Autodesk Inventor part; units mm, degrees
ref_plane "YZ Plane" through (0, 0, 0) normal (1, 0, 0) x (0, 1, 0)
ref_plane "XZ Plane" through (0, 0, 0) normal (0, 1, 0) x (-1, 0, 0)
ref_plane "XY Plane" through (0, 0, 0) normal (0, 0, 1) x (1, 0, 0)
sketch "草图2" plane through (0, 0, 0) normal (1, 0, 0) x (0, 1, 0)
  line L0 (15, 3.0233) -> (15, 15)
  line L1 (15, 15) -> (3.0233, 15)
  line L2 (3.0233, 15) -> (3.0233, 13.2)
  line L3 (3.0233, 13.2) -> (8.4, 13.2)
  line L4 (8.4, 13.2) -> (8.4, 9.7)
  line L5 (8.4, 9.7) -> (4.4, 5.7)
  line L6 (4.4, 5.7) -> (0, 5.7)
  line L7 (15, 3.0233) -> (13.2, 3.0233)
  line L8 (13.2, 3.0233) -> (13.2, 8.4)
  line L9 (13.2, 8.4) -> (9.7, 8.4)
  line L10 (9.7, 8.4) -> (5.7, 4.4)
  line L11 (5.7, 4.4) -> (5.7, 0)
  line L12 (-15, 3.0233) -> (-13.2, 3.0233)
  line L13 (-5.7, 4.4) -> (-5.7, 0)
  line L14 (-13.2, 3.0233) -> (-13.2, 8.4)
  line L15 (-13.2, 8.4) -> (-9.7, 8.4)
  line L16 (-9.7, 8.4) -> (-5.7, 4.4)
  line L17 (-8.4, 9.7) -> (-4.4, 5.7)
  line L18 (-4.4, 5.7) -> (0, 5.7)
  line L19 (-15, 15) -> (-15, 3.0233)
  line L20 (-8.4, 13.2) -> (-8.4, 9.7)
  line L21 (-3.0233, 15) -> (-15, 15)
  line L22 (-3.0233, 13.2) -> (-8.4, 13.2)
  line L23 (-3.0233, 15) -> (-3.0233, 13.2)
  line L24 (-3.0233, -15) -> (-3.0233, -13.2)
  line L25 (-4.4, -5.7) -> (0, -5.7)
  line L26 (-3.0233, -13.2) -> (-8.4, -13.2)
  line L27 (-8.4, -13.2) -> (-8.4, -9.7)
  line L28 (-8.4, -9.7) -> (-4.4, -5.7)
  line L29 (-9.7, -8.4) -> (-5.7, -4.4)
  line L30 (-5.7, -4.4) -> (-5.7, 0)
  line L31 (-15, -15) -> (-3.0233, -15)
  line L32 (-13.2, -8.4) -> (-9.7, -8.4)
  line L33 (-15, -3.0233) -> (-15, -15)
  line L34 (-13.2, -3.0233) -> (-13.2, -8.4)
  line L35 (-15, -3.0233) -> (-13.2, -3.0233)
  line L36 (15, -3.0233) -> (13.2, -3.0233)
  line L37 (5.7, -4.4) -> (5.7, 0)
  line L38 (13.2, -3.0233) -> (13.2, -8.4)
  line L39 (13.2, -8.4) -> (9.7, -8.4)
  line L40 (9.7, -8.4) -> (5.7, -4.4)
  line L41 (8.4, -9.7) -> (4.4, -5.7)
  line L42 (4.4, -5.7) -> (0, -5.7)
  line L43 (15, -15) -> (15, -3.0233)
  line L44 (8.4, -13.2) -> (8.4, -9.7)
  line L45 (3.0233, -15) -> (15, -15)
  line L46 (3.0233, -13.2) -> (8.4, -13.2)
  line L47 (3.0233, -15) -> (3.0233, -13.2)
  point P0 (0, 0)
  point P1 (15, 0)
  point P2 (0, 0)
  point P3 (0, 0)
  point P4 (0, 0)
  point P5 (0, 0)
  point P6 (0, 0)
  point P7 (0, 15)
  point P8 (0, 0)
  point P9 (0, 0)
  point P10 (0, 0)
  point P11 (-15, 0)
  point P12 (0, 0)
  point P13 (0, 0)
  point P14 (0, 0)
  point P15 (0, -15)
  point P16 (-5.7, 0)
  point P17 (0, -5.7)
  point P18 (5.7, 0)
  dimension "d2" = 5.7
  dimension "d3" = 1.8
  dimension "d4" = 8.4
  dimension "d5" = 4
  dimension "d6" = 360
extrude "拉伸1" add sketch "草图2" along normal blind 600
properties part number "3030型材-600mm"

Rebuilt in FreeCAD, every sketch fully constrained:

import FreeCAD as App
import Part
import Sketcher
from FreeCAD import Vector

doc = App.newDocument("Part")
body = doc.addObject("PartDesign::Body", "Body")

# Sketch on YZ plane
sketch1 = body.newObject("Sketcher::SketchObject", "Sketch")
sketch1.AttachmentSupport = (doc.getObject("YZ_Plane"), [""])
sketch1.MapMode = "FlatFace"
sketch1.addGeometry([
    Part.LineSegment(Vector(13.2, 3.0233, 0), Vector(15, 3.0233, 0)),  # 0
    Part.LineSegment(Vector(15, 3.0233, 0), Vector(15, 15, 0)),  # 1
    Part.LineSegment(Vector(15, 15, 0), Vector(3.0233, 15, 0)),  # 2
    Part.LineSegment(Vector(3.0233, 15, 0), Vector(3.0233, 13.2, 0)),  # 3
    Part.LineSegment(Vector(3.0233, 13.2, 0), Vector(8.4, 13.2, 0)),  # 4
    Part.LineSegment(Vector(8.4, 13.2, 0), Vector(8.4, 9.7, 0)),  # 5
    Part.LineSegment(Vector(8.4, 9.7, 0), Vector(4.4, 5.7, 0)),  # 6
    Part.LineSegment(Vector(4.4, 5.7, 0), Vector(-4.4, 5.7, 0)),  # 7
    Part.LineSegment(Vector(-4.4, 5.7, 0), Vector(-8.4, 9.7, 0)),  # 8
    Part.LineSegment(Vector(-8.4, 9.7, 0), Vector(-8.4, 13.2, 0)),  # 9
    Part.LineSegment(Vector(-8.4, 13.2, 0), Vector(-3.0233, 13.2, 0)),  # 10
    Part.LineSegment(Vector(-3.0233, 13.2, 0), Vector(-3.0233, 15, 0)),  # 11
    Part.LineSegment(Vector(-3.0233, 15, 0), Vector(-15, 15, 0)),  # 12
    Part.LineSegment(Vector(-15, 15, 0), Vector(-15, 3.0233, 0)),  # 13
    Part.LineSegment(Vector(-15, 3.0233, 0), Vector(-13.2, 3.0233, 0)),  # 14
    Part.LineSegment(Vector(-13.2, 3.0233, 0), Vector(-13.2, 8.4, 0)),  # 15
    Part.LineSegment(Vector(-13.2, 8.4, 0), Vector(-9.7, 8.4, 0)),  # 16
    Part.LineSegment(Vector(-9.7, 8.4, 0), Vector(-5.7, 4.4, 0)),  # 17
    Part.LineSegment(Vector(-5.7, 4.4, 0), Vector(-5.7, -4.4, 0)),  # 18
    Part.LineSegment(Vector(-5.7, -4.4, 0), Vector(-9.7, -8.4, 0)),  # 19
    Part.LineSegment(Vector(-9.7, -8.4, 0), Vector(-13.2, -8.4, 0)),  # 20
    Part.LineSegment(Vector(-13.2, -8.4, 0), Vector(-13.2, -3.0233, 0)),  # 21
    Part.LineSegment(Vector(-13.2, -3.0233, 0), Vector(-15, -3.0233, 0)),  # 22
    Part.LineSegment(Vector(-15, -3.0233, 0), Vector(-15, -15, 0)),  # 23
    Part.LineSegment(Vector(-15, -15, 0), Vector(-3.0233, -15, 0)),  # 24
    Part.LineSegment(Vector(-3.0233, -15, 0), Vector(-3.0233, -13.2, 0)),  # 25
    Part.LineSegment(Vector(-3.0233, -13.2, 0), Vector(-8.4, -13.2, 0)),  # 26
    Part.LineSegment(Vector(-8.4, -13.2, 0), Vector(-8.4, -9.7, 0)),  # 27
    Part.LineSegment(Vector(-8.4, -9.7, 0), Vector(-4.4, -5.7, 0)),  # 28
    Part.LineSegment(Vector(-4.4, -5.7, 0), Vector(4.4, -5.7, 0)),  # 29
    Part.LineSegment(Vector(4.4, -5.7, 0), Vector(8.4, -9.7, 0)),  # 30
    Part.LineSegment(Vector(8.4, -9.7, 0), Vector(8.4, -13.2, 0)),  # 31
    Part.LineSegment(Vector(8.4, -13.2, 0), Vector(3.0233, -13.2, 0)),  # 32
    Part.LineSegment(Vector(3.0233, -13.2, 0), Vector(3.0233, -15, 0)),  # 33
    Part.LineSegment(Vector(3.0233, -15, 0), Vector(15, -15, 0)),  # 34
    Part.LineSegment(Vector(15, -15, 0), Vector(15, -3.0233, 0)),  # 35
    Part.LineSegment(Vector(15, -3.0233, 0), Vector(13.2, -3.0233, 0)),  # 36
    Part.LineSegment(Vector(13.2, -3.0233, 0), Vector(13.2, -8.4, 0)),  # 37
    Part.LineSegment(Vector(13.2, -8.4, 0), Vector(9.7, -8.4, 0)),  # 38
    Part.LineSegment(Vector(9.7, -8.4, 0), Vector(5.7, -4.4, 0)),  # 39
    Part.LineSegment(Vector(5.7, -4.4, 0), Vector(5.7, 4.4, 0)),  # 40
    Part.LineSegment(Vector(5.7, 4.4, 0), Vector(9.7, 8.4, 0)),  # 41
    Part.LineSegment(Vector(9.7, 8.4, 0), Vector(13.2, 8.4, 0)),  # 42
    Part.LineSegment(Vector(13.2, 8.4, 0), Vector(13.2, 3.0233, 0)),  # 43
], False)
sketch1.addConstraint([
    Sketcher.Constraint("Coincident", 0, 2, 1, 1),
    Sketcher.Constraint("Coincident", 1, 2, 2, 1),
    Sketcher.Constraint("Coincident", 2, 2, 3, 1),
    Sketcher.Constraint("Coincident", 3, 2, 4, 1),
    Sketcher.Constraint("Coincident", 4, 2, 5, 1),
    Sketcher.Constraint("Coincident", 5, 2, 6, 1),
    Sketcher.Constraint("Coincident", 6, 2, 7, 1),
    Sketcher.Constraint("Coincident", 7, 2, 8, 1),
    Sketcher.Constraint("Coincident", 8, 2, 9, 1),
    Sketcher.Constraint("Coincident", 9, 2, 10, 1),
    Sketcher.Constraint("Coincident", 10, 2, 11, 1),
    Sketcher.Constraint("Coincident", 11, 2, 12, 1),
    Sketcher.Constraint("Coincident", 12, 2, 13, 1),
    Sketcher.Constraint("Coincident", 13, 2, 14, 1),
    Sketcher.Constraint("Coincident", 14, 2, 15, 1),
    Sketcher.Constraint("Coincident", 15, 2, 16, 1),
    Sketcher.Constraint("Coincident", 16, 2, 17, 1),
    Sketcher.Constraint("Coincident", 17, 2, 18, 1),
    Sketcher.Constraint("Coincident", 18, 2, 19, 1),
    Sketcher.Constraint("Coincident", 19, 2, 20, 1),
    Sketcher.Constraint("Coincident", 20, 2, 21, 1),
    Sketcher.Constraint("Coincident", 21, 2, 22, 1),
    Sketcher.Constraint("Coincident", 22, 2, 23, 1),
    Sketcher.Constraint("Coincident", 23, 2, 24, 1),
    Sketcher.Constraint("Coincident", 24, 2, 25, 1),
    Sketcher.Constraint("Coincident", 25, 2, 26, 1),
    Sketcher.Constraint("Coincident", 26, 2, 27, 1),
    Sketcher.Constraint("Coincident", 27, 2, 28, 1),
    Sketcher.Constraint("Coincident", 28, 2, 29, 1),
    Sketcher.Constraint("Coincident", 29, 2, 30, 1),
    Sketcher.Constraint("Coincident", 30, 2, 31, 1),
    Sketcher.Constraint("Coincident", 31, 2, 32, 1),
    Sketcher.Constraint("Coincident", 32, 2, 33, 1),
    Sketcher.Constraint("Coincident", 33, 2, 34, 1),
    Sketcher.Constraint("Coincident", 34, 2, 35, 1),
    Sketcher.Constraint("Coincident", 35, 2, 36, 1),
    Sketcher.Constraint("Coincident", 36, 2, 37, 1),
    Sketcher.Constraint("Coincident", 37, 2, 38, 1),
    Sketcher.Constraint("Coincident", 38, 2, 39, 1),
    Sketcher.Constraint("Coincident", 39, 2, 40, 1),
    Sketcher.Constraint("Coincident", 40, 2, 41, 1),
    Sketcher.Constraint("Coincident", 41, 2, 42, 1),
    Sketcher.Constraint("Coincident", 42, 2, 43, 1),
    Sketcher.Constraint("Coincident", 43, 2, 0, 1),
    Sketcher.Constraint("Horizontal", 0),
    Sketcher.Constraint("Vertical", 1),
    Sketcher.Constraint("Horizontal", 2),
    Sketcher.Constraint("Vertical", 3),
    Sketcher.Constraint("Horizontal", 4),
    Sketcher.Constraint("Vertical", 5),
    Sketcher.Constraint("Horizontal", 7),
    Sketcher.Constraint("Vertical", 9),
    Sketcher.Constraint("Horizontal", 10),
    Sketcher.Constraint("Vertical", 11),
    Sketcher.Constraint("Horizontal", 12),
    Sketcher.Constraint("Vertical", 13),
    Sketcher.Constraint("Horizontal", 14),
    Sketcher.Constraint("Vertical", 15),
    Sketcher.Constraint("Horizontal", 16),
    Sketcher.Constraint("Vertical", 18),
    Sketcher.Constraint("Horizontal", 20),
    Sketcher.Constraint("Vertical", 21),
    Sketcher.Constraint("Horizontal", 22),
    Sketcher.Constraint("Vertical", 23),
    Sketcher.Constraint("Horizontal", 24),
    Sketcher.Constraint("Vertical", 25),
    Sketcher.Constraint("Horizontal", 26),
    Sketcher.Constraint("Vertical", 27),
    Sketcher.Constraint("Horizontal", 29),
    Sketcher.Constraint("Vertical", 31),
    Sketcher.Constraint("Horizontal", 32),
    Sketcher.Constraint("Vertical", 33),
    Sketcher.Constraint("Horizontal", 34),
    Sketcher.Constraint("Vertical", 35),
    Sketcher.Constraint("Horizontal", 36),
    Sketcher.Constraint("Vertical", 37),
    Sketcher.Constraint("Horizontal", 38),
    Sketcher.Constraint("Vertical", 40),
    Sketcher.Constraint("Horizontal", 42),
    Sketcher.Constraint("Vertical", 43),
    Sketcher.Constraint("Symmetric", 0, 2, 22, 2, -1, 1),
    Sketcher.Constraint("Symmetric", 2, 2, 24, 2, -1, 1),
    Sketcher.Constraint("Symmetric", 4, 2, 26, 2, -1, 1),
    Sketcher.Constraint("Symmetric", 6, 2, 28, 2, -1, 1),
    Sketcher.Constraint("Symmetric", 8, 2, 30, 2, -1, 1),
    Sketcher.Constraint("Symmetric", 10, 2, 32, 2, -1, 1),
    Sketcher.Constraint("Symmetric", 12, 2, 34, 2, -1, 1),
    Sketcher.Constraint("Symmetric", 14, 2, 36, 2, -1, 1),
    Sketcher.Constraint("Symmetric", 16, 2, 38, 2, -1, 1),
    Sketcher.Constraint("Symmetric", 17, 2, 39, 2, -1, 1),
    Sketcher.Constraint("Symmetric", 19, 2, 41, 2, -1, 1),
    Sketcher.Constraint("Symmetric", 5, 2, 8, 2, -2),
    Sketcher.Constraint("Symmetric", 3, 2, 10, 2, -2),
    Sketcher.Constraint("Symmetric", 1, 2, 12, 2, -2),
    Sketcher.Constraint("Symmetric", 21, 2, 36, 2, -2),
    Sketcher.Constraint("Symmetric", 19, 2, 38, 2, -2),
    Sketcher.Constraint("Perpendicular", 6, 8),
    Sketcher.Constraint("Parallel", 8, 17),
    Sketcher.Constraint("Perpendicular", 17, 19),
    Sketcher.Constraint("Parallel", 19, 28),
    Sketcher.Constraint("Perpendicular", 28, 30),
    Sketcher.Constraint("Perpendicular", 39, 41),
    Sketcher.Constraint("Horizontal", 18, 2, 39, 2),
    Sketcher.Constraint("Vertical", 37, 2, 42, 2),
    Sketcher.Constraint("Equal", 34, 1),
    Sketcher.Constraint("Equal", 36, 3),
    Sketcher.Constraint("Equal", 42, 5),
    Sketcher.Constraint("Equal", 32, 15),
    Sketcher.Constraint("Equal", 29, 18),
    Sketcher.Constraint("Equal", 8, 17),
    Sketcher.Constraint("DistanceX", 0, 1, 0, 2, 1.8),
    Sketcher.Constraint("DistanceX", 6, 2, 5, 2, 4.0),
    Sketcher.Constraint("DistanceX", -1, 1, 4, 2, 8.4),
    Sketcher.Constraint("DistanceY", -1, 1, 6, 2, 5.7),
    Sketcher.Constraint("DistanceX", 16, 1, 16, 2, 3.5),
    Sketcher.Constraint("DistanceX", 2, 2, 2, 1, 11.9767),
])
pad1 = body.newObject("PartDesign::Pad", "Pad")
pad1.Profile = sketch1
pad1.Length = 600

doc.recompute()
